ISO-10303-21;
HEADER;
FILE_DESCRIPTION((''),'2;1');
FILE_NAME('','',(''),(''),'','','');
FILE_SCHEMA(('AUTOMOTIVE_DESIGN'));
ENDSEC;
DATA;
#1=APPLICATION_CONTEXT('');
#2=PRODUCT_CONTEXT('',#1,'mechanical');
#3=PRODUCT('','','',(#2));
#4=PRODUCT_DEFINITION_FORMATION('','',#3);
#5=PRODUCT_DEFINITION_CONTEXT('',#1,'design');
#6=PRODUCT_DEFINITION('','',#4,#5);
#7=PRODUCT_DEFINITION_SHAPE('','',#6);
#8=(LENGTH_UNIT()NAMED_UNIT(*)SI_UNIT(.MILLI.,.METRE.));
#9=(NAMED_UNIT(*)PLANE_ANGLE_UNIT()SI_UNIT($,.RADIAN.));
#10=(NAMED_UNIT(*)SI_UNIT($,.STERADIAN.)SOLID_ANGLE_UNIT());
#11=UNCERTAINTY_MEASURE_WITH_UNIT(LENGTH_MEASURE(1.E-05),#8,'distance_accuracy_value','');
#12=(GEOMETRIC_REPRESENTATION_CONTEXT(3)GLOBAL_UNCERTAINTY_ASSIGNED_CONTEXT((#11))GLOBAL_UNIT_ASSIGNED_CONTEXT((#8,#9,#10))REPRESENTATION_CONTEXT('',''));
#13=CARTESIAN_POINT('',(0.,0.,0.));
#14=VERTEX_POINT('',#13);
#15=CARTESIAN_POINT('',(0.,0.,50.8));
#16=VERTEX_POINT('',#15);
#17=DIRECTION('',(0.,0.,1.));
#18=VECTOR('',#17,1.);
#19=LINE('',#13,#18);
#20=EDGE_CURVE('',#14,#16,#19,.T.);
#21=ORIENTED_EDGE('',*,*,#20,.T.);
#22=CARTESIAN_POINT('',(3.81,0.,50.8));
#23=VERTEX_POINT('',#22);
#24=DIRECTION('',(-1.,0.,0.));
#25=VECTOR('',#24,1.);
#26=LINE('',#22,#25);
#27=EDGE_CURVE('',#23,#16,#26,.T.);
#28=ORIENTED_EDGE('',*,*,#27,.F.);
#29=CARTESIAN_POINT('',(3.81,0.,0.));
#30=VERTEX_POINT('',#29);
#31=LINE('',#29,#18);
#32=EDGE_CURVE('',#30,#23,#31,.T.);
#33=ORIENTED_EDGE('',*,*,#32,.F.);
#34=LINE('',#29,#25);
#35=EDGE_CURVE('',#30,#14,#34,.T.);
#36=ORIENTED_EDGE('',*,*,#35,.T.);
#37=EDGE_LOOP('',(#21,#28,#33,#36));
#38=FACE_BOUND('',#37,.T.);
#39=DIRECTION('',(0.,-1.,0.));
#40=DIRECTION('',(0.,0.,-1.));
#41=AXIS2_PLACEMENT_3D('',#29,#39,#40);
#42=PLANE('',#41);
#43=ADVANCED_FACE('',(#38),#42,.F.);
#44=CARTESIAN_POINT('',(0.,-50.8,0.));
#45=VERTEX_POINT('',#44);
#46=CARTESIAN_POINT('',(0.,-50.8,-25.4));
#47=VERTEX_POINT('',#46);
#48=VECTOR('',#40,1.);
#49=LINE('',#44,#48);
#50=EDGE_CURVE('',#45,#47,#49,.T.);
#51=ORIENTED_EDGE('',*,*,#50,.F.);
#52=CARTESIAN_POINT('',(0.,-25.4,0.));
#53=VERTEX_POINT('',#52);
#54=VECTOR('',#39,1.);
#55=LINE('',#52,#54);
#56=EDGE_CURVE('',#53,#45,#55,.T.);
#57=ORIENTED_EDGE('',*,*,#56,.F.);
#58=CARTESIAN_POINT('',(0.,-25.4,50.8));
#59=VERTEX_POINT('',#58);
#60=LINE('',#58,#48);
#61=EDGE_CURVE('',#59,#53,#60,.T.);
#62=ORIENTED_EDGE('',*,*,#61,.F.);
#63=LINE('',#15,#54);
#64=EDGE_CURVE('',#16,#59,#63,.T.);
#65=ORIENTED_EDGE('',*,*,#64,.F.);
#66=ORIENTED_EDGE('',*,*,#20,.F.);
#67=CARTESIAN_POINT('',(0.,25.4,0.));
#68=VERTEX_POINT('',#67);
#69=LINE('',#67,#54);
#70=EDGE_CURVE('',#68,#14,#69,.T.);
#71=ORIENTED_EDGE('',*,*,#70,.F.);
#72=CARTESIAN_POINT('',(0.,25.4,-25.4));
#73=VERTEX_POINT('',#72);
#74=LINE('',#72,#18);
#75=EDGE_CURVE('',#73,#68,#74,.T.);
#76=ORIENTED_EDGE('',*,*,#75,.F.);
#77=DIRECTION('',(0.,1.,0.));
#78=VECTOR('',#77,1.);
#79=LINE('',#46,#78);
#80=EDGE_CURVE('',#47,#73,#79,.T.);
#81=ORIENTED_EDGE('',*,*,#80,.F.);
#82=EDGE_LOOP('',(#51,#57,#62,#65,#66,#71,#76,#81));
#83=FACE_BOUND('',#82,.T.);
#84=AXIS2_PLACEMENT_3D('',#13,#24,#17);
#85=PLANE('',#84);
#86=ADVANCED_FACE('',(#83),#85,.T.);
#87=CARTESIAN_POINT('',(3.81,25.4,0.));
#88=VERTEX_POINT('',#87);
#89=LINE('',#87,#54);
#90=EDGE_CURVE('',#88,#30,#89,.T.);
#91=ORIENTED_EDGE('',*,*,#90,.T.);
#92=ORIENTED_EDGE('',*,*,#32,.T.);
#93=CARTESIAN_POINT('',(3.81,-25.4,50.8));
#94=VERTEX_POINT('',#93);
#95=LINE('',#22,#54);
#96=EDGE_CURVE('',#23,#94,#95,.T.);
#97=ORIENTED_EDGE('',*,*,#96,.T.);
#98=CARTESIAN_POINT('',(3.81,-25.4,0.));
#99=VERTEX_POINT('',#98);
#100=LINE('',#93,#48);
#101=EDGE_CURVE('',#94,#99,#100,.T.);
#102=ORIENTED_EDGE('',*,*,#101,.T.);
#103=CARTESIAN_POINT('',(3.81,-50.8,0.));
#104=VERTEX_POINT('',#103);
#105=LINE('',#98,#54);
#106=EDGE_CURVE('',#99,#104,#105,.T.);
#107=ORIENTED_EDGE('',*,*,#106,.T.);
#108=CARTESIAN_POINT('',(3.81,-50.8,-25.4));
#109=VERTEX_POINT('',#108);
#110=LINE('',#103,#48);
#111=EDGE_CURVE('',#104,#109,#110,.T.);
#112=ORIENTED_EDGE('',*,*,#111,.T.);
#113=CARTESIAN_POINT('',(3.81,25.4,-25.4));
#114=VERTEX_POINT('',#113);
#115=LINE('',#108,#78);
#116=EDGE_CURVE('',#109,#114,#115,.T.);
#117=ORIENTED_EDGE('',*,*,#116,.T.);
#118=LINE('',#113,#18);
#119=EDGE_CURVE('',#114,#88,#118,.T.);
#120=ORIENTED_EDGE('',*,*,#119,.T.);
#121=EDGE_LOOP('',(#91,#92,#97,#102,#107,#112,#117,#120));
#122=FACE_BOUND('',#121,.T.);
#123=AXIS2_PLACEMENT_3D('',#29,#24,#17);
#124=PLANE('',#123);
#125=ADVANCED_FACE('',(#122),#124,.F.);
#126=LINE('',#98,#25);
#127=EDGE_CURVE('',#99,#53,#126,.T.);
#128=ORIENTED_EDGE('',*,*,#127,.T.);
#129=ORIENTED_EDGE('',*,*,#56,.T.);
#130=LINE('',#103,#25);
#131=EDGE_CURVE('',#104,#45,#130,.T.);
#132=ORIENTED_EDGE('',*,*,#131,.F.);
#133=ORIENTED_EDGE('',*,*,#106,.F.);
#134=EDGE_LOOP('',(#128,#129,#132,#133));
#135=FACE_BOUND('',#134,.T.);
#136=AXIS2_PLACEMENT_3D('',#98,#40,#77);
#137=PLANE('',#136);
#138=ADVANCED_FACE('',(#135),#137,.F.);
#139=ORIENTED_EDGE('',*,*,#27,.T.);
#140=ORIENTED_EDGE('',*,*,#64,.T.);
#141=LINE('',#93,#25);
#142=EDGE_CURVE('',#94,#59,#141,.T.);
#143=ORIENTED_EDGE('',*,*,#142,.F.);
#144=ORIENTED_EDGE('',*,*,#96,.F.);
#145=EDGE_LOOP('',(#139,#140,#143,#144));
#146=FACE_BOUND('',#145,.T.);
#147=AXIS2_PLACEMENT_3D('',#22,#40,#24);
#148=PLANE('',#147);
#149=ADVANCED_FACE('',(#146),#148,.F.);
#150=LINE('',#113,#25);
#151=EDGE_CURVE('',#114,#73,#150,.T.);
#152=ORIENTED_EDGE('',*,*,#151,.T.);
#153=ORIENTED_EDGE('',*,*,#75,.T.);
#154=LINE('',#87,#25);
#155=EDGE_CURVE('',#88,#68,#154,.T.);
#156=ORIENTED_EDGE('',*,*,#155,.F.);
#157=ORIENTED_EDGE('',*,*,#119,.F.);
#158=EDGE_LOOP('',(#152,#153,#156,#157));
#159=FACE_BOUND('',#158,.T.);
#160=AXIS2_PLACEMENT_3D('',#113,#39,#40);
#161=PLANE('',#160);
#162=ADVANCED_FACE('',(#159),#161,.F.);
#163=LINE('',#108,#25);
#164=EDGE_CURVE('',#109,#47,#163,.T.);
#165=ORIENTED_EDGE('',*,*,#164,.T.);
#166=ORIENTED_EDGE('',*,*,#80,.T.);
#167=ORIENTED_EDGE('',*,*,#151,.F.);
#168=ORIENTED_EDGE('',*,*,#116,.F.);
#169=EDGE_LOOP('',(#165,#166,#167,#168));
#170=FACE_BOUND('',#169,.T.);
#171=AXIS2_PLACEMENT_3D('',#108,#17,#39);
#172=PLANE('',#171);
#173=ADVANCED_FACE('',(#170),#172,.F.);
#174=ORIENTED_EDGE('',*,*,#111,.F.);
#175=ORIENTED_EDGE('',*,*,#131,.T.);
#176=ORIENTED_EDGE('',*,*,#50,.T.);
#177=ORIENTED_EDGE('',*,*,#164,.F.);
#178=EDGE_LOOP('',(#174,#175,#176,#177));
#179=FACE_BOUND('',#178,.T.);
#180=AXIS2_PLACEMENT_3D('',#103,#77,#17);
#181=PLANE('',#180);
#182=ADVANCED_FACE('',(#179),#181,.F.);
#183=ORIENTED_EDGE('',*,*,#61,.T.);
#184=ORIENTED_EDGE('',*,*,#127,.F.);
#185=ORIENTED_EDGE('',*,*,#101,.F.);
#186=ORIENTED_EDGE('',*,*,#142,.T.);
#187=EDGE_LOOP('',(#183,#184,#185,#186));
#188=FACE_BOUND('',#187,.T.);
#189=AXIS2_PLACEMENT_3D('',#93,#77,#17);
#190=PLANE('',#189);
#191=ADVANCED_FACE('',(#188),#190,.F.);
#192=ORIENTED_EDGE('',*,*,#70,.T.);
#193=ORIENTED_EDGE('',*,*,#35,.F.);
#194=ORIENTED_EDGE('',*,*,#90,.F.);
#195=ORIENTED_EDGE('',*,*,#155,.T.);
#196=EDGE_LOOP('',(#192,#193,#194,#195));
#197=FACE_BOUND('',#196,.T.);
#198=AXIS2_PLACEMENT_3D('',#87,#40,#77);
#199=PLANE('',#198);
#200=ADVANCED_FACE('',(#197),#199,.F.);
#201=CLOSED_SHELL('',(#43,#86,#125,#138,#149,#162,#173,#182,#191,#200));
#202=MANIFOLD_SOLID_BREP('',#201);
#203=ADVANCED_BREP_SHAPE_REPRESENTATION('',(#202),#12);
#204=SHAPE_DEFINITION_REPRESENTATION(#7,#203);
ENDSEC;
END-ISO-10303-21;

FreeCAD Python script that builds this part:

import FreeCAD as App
import Part
import Sketcher
from FreeCAD import Vector
Q = App.Units.Quantity


def add_polygon(sketch, points):
    """Adds a closed chain of lines whose ends are joined by coincident constraints."""
    first, n = sketch.GeometryCount, len(points)
    for a, b in zip(points, points[1:] + points[:1]):
        sketch.addGeometry(Part.LineSegment(App.Vector(*a, 0), App.Vector(*b, 0)), False)
    for i in range(n):
        sketch.addConstraint(Sketcher.Constraint("Coincident", first + i, 2, first + (i + 1) % n, 1))

doc = App.newDocument("Part")
body = doc.addObject("PartDesign::Body", "Body")

# Sketch on YZ plane
sketch1 = body.newObject("Sketcher::SketchObject", "Sketch")
sketch1.AttachmentSupport = (doc.getObject("YZ_Plane"), [""])
sketch1.MapMode = "FlatFace"
add_polygon(sketch1, [(0, 0), (0, 51), (-25, 51), (-25, 0), (-51, 0), (-51, -25), (25, -25), (25, 0)])  # lines 0-7
sketch1.addConstraint([
    Sketcher.Constraint("Vertical", 0),
    Sketcher.Constraint("Horizontal", 1),
    Sketcher.Constraint("Vertical", 2),
    Sketcher.Constraint("Horizontal", 3),
    Sketcher.Constraint("Vertical", 4),
    Sketcher.Constraint("Horizontal", 5),
    Sketcher.Constraint("Vertical", 6),
    Sketcher.Constraint("Horizontal", 7),
    Sketcher.Constraint("Coincident", 7, 2, -1, 1),
    Sketcher.Constraint("Symmetric", 2, 2, 6, 2, -1, 1),
    Sketcher.Constraint("Equal", 1, 3),
    Sketcher.Constraint("Equal", 7, 4),
    Sketcher.Constraint("DistanceX", 1, 2, 1, 1, Q("1 in")),
    Sketcher.Constraint("DistanceY", 0, 1, 0, 2, Q("2 in")),
])
pad1 = body.newObject("PartDesign::Pad", "Pad")
pad1.Profile = sketch1
pad1.Length = Q("0.15 in")

doc.recompute()
